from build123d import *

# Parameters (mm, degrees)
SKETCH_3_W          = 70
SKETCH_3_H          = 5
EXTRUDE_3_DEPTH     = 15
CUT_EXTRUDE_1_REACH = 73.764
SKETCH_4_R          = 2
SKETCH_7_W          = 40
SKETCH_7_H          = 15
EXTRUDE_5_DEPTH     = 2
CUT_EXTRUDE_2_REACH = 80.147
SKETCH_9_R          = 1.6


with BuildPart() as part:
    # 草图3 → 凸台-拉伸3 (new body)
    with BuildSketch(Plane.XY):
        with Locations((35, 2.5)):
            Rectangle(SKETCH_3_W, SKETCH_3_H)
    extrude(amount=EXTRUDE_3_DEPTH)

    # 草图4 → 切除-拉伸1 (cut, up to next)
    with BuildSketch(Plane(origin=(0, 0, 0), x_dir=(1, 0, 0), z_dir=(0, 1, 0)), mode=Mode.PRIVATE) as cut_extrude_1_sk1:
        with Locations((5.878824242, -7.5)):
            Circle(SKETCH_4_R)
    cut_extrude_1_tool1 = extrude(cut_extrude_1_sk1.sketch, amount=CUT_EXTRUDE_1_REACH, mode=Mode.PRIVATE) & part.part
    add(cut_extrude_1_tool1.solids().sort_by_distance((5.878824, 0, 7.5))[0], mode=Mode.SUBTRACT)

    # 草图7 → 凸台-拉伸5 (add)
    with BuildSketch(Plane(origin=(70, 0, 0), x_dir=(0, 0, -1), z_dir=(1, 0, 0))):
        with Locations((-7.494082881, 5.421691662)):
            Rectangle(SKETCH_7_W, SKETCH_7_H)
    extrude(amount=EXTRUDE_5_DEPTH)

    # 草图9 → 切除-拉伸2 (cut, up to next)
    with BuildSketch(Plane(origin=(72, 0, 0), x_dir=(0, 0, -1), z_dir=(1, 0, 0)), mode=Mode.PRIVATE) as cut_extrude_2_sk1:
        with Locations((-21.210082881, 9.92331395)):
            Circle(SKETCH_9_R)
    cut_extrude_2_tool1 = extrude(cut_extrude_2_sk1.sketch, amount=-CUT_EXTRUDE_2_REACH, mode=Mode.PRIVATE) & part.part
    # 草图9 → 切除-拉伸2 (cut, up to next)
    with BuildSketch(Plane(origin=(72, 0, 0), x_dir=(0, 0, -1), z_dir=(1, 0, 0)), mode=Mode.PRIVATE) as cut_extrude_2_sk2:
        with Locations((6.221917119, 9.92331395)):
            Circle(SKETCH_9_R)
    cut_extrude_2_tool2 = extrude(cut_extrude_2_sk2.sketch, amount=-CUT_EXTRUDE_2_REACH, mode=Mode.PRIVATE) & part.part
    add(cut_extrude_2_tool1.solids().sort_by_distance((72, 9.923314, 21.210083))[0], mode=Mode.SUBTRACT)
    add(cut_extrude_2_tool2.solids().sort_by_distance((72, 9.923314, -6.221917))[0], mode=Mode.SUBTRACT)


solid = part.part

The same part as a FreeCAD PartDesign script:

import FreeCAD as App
import Part
import Sketcher

doc = App.newDocument("Part")
body = doc.addObject("PartDesign::Body", "Body")

sketch1 = doc.addObject("Sketcher::SketchObject", "Sketch")
body.addObject(sketch1)
sketch1.AttachmentSupport = (doc.XY_Plane, [""])
sketch1.MapMode = "FlatFace"
sketch1.addGeometry([
    Part.LineSegment(App.Vector(0, 5, 0), App.Vector(0, 0, 0)),
    Part.LineSegment(App.Vector(0, 0, 0), App.Vector(70, 0, 0)),
    Part.LineSegment(App.Vector(70, 0, 0), App.Vector(70, 5, 0)),
    Part.LineSegment(App.Vector(70, 5, 0), App.Vector(0, 5, 0)),
], False)
sketch1.addConstraint([
    Sketcher.Constraint("Coincident", 0, 2, 1, 1),
    Sketcher.Constraint("Coincident", 1, 2, 2, 1),
    Sketcher.Constraint("Coincident", 2, 2, 3, 1),
    Sketcher.Constraint("Coincident", 3, 2, 0, 1),
    Sketcher.Constraint("Vertical", 0),
    Sketcher.Constraint("Horizontal", 1),
    Sketcher.Constraint("Vertical", 2),
    Sketcher.Constraint("Horizontal", 3),
    Sketcher.Constraint("Coincident", 0, 2, -1, 1),
    Sketcher.Constraint("DistanceX", 1, 1, 1, 2, 70.0),
    Sketcher.Constraint("DistanceY", 0, 2, 0, 1, 5.0),
])
pad1 = doc.addObject("PartDesign::Pad", "Pad")
body.addObject(pad1)
pad1.Profile = sketch1
pad1.Length = 15

sketch2 = doc.addObject("Sketcher::SketchObject", "Sketch001")
body.addObject(sketch2)
sketch2.AttachmentSupport = (doc.XZ_Plane, [""])
sketch2.MapMode = "FlatFace"
sketch2.addGeometry(Part.Circle(App.Vector(5.9, 7.5, 0), App.Vector(0, 0, 1), 2), False)
sketch2.addConstraint([
    Sketcher.Constraint("Diameter", 0, 4.0),
    Sketcher.Constraint("DistanceY", -1, 1, 0, 3, 7.5),
    Sketcher.Constraint("DistanceX", -1, 1, 0, 3, 5.878824),
])
pocket1 = doc.addObject("PartDesign::Pocket", "Pocket")
body.addObject(pocket1)
pocket1.Profile = sketch2
pocket1.Type = "UpToFirst"

sketch3 = doc.addObject("Sketcher::SketchObject", "Sketch002")
body.addObject(sketch3)
sketch3.AttachmentSupport = (doc.YZ_Plane, [""])
sketch3.MapMode = "FlatFace"
sketch3.AttachmentOffset = App.Placement(App.Vector(0, 0, 70), App.Rotation())
sketch3.addGeometry([
    Part.LineSegment(App.Vector(13, 27, 0), App.Vector(-2, 27, 0)),
    Part.LineSegment(App.Vector(-2, 27, 0), App.Vector(-2, -13, 0)),
    Part.LineSegment(App.Vector(-2, -13, 0), App.Vector(13, -13, 0)),
    Part.LineSegment(App.Vector(13, -13, 0), App.Vector(13, 27, 0)),
], False)
sketch3.addConstraint([
    Sketcher.Constraint("Coincident", 0, 2, 1, 1),
    Sketcher.Constraint("Coincident", 1, 2, 2, 1),
    Sketcher.Constraint("Coincident", 2, 2, 3, 1),
    Sketcher.Constraint("Coincident", 3, 2, 0, 1),
    Sketcher.Constraint("Horizontal", 0),
    Sketcher.Constraint("Vertical", 1),
    Sketcher.Constraint("Horizontal", 2),
    Sketcher.Constraint("Vertical", 3),
    Sketcher.Constraint("DistanceX", 0, 2, 0, 1, 15.0),
    Sketcher.Constraint("DistanceY", 1, 2, 1, 1, 40.0),
    Sketcher.Constraint("DistanceX", 0, 2, -1, 1, 2.078308),
    Sketcher.Constraint("DistanceY", -1, 1, 0, 2, 27.494083),
])
pad2 = doc.addObject("PartDesign::Pad", "Pad001")
body.addObject(pad2)
pad2.Profile = sketch3
pad2.Length = 2

sketch4 = doc.addObject("Sketcher::SketchObject", "Sketch003")
body.addObject(sketch4)
sketch4.AttachmentSupport = (doc.YZ_Plane, [""])
sketch4.MapMode = "FlatFace"
sketch4.AttachmentOffset = App.Placement(App.Vector(0, 0, 72), App.Rotation())
sketch4.addGeometry(Part.Circle(App.Vector(9.9, 21.2, 0), App.Vector(0, 0, 1), 1.6), False)
sketch4.addConstraint([
    Sketcher.Constraint("Diameter", 0, 3.2),
    Sketcher.Constraint("DistanceX", -1, 1, 0, 3, 9.923314),
    Sketcher.Constraint("DistanceY", -1, 1, 0, 3, 21.210083),
])
pocket2 = doc.addObject("PartDesign::Pocket", "Pocket001")
body.addObject(pocket2)
pocket2.Profile = sketch4
pocket2.Type = "UpToFirst"

sketch5 = doc.addObject("Sketcher::SketchObject", "Sketch004")
body.addObject(sketch5)
sketch5.AttachmentSupport = (doc.YZ_Plane, [""])
sketch5.MapMode = "FlatFace"
sketch5.AttachmentOffset = App.Placement(App.Vector(0, 0, 72), App.Rotation())
sketch5.addGeometry(Part.Circle(App.Vector(9.9, -6.2, 0), App.Vector(0, 0, 1), 1.6), False)
sketch5.addConstraint([
    Sketcher.Constraint("Diameter", 0, 3.2),
    Sketcher.Constraint("DistanceX", -1, 1, 0, 3, 9.923314),
    Sketcher.Constraint("DistanceY", 0, 3, -1, 1, 6.221917),
])
pocket3 = doc.addObject("PartDesign::Pocket", "Pocket002")
body.addObject(pocket3)
pocket3.Profile = sketch5
pocket3.Type = "UpToFirst"

doc.recompute()
